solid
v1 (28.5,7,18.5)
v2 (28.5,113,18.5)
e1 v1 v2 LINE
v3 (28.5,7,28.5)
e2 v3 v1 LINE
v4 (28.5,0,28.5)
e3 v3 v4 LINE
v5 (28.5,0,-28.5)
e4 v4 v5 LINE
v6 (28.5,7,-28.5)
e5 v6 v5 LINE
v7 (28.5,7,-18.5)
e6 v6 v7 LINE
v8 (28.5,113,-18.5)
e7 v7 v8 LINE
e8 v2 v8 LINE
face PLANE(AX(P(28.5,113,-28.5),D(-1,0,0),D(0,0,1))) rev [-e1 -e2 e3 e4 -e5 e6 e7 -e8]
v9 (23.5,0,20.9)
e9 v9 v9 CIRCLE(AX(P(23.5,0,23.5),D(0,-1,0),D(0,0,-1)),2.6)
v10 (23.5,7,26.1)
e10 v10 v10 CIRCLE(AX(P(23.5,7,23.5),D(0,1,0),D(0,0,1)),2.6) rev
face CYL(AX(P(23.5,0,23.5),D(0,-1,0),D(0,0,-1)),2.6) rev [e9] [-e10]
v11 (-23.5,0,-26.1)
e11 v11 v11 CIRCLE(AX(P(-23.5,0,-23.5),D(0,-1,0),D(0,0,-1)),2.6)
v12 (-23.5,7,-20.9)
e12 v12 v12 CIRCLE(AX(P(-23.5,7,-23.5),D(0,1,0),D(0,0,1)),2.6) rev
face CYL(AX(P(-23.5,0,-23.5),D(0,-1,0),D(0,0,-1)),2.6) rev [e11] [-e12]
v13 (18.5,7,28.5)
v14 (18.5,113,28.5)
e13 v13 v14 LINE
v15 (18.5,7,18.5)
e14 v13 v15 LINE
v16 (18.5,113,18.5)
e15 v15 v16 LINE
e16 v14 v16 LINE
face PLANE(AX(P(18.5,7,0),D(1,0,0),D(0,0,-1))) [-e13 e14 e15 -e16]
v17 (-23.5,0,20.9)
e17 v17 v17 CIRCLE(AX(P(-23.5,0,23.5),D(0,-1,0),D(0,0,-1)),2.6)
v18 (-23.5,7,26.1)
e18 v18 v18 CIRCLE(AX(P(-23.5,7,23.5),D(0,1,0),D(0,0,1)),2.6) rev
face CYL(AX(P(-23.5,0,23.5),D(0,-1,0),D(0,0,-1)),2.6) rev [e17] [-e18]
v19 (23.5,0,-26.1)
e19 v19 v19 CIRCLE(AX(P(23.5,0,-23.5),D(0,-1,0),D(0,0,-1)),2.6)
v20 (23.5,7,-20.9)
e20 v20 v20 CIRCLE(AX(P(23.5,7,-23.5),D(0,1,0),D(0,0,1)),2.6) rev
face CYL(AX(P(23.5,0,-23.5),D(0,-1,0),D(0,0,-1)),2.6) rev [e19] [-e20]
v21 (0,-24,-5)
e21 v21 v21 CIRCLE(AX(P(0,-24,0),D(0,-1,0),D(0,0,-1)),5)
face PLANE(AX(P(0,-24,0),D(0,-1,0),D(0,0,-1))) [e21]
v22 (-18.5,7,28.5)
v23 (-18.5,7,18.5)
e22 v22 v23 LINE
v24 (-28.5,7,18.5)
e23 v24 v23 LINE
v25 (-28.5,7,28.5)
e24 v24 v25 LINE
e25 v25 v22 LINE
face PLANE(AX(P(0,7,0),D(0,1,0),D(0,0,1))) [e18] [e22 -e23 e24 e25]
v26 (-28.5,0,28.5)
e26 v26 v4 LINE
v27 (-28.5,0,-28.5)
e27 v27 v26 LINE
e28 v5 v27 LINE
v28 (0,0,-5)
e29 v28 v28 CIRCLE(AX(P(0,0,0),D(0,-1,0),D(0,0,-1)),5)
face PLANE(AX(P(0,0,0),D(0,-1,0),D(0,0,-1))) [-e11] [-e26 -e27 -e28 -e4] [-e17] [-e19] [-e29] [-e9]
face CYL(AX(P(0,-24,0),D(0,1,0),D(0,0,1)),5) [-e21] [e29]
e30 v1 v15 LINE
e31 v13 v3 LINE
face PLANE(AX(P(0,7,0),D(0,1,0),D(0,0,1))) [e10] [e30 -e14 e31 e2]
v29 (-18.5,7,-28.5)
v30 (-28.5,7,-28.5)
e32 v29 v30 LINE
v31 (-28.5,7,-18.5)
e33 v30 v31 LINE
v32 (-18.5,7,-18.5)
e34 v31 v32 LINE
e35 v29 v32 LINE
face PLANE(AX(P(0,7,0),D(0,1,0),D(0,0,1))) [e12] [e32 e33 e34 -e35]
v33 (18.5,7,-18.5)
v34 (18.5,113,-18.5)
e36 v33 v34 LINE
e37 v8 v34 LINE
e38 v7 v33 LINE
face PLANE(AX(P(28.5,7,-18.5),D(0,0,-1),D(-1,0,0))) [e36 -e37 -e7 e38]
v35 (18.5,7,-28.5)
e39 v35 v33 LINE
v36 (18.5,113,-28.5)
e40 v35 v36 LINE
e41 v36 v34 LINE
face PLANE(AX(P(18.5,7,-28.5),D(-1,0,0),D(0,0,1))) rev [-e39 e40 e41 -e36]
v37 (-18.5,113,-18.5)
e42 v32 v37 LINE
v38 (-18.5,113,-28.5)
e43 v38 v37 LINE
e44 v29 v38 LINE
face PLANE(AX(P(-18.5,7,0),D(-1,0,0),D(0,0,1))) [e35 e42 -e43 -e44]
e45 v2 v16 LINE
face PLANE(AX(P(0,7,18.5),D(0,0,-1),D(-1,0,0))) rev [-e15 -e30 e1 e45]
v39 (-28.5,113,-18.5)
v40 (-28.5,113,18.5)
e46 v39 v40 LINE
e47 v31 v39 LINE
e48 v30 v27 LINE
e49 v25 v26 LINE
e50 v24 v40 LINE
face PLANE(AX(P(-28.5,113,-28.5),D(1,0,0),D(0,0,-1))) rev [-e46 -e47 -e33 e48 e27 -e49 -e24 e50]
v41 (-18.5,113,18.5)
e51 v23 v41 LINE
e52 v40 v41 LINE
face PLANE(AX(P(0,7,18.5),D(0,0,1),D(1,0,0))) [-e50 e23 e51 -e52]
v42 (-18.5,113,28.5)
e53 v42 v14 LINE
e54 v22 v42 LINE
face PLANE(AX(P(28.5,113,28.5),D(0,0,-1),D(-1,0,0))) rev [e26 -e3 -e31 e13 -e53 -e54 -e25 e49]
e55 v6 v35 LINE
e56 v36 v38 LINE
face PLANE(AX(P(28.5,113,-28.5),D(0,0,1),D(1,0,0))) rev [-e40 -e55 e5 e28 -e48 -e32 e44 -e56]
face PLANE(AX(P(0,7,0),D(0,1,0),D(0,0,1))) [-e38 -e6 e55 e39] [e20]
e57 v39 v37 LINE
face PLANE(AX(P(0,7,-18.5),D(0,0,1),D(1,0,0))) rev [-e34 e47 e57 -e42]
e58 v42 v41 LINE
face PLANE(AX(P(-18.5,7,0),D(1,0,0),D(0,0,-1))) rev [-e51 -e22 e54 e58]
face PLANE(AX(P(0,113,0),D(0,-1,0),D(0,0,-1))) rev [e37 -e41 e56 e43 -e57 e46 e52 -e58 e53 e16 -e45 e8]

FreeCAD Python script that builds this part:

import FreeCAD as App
import Part
import Sketcher
from FreeCAD import Vector


def add_polygon(sketch, points):
    """Adds a closed chain of lines whose ends are joined by coincident constraints."""
    first, n = sketch.GeometryCount, len(points)
    for a, b in zip(points, points[1:] + points[:1]):
        sketch.addGeometry(Part.LineSegment(App.Vector(*a, 0), App.Vector(*b, 0)), False)
    for i in range(n):
        sketch.addConstraint(Sketcher.Constraint("Coincident", first + i, 2, first + (i + 1) % n, 1))

doc = App.newDocument("Part")
body = doc.addObject("PartDesign::Body", "Body")

sketch1 = body.newObject("Sketcher::SketchObject", "Sketch")
sketch1.AttachmentSupport = (doc.getObject("XZ_Plane"), [""])
sketch1.MapMode = "FlatFace"
add_polygon(sketch1, [(-28, -28), (-28, 28), (28, 28), (28, -28)])
sketch1.addConstraint(Sketcher.Constraint("Vertical", 0))
sketch1.addConstraint(Sketcher.Constraint("Horizontal", 1))
sketch1.addConstraint(Sketcher.Constraint("Vertical", 2))
sketch1.addConstraint(Sketcher.Constraint("Horizontal", 3))
sketch1.addConstraint(Sketcher.Constraint("Symmetric", 0, 2, 2, 2, -1, 1))
sketch1.addConstraint(Sketcher.Constraint("Equal", 3, 0))
sketch1.addConstraint(Sketcher.Constraint("DistanceX", 1, 1, 1, 2, 57.0))
pad1 = body.newObject("PartDesign::Pad", "Pad")
pad1.Profile = sketch1
pad1.Length = 113
pad1.Reversed = True

sketch2 = body.newObject("Sketcher::SketchObject", "Sketch001")
sketch2.AttachmentSupport = (doc.getObject("XZ_Plane"), [""])
sketch2.MapMode = "FlatFace"
sketch2.addGeometry(Part.Circle(Vector(0, 0, 0), Vector(0, 0, 1), 5), False)
sketch2.addConstraint(Sketcher.Constraint("Coincident", 0, 3, -1, 1))
sketch2.addConstraint(Sketcher.Constraint("Diameter", 0, 10.0))
pad2 = body.newObject("PartDesign::Pad", "Pad001")
pad2.Profile = sketch2
pad2.Length = 24

sketch3 = body.newObject("Sketcher::SketchObject", "Sketch002")
sketch3.AttachmentSupport = (doc.getObject("XZ_Plane"), [""])
sketch3.MapMode = "FlatFace"
sketch3.addGeometry(Part.Circle(Vector(-23.5, 23.5, 0), Vector(0, 0, 1), 2.6), False)
sketch3.addGeometry(Part.Circle(Vector(23.5, 23.5, 0), Vector(0, 0, 1), 2.6), False)
sketch3.addGeometry(Part.Circle(Vector(23.5, -23.5, 0), Vector(0, 0, 1), 2.6), False)
sketch3.addGeometry(Part.Circle(Vector(-23.5, -23.5, 0), Vector(0, 0, 1), 2.6), False)
sketch3.addConstraint(Sketcher.Constraint("Equal", 0, 1))
sketch3.addConstraint(Sketcher.Constraint("Equal", 1, 2))
sketch3.addConstraint(Sketcher.Constraint("Equal", 2, 3))
sketch3.addConstraint(Sketcher.Constraint("Symmetric", 0, 3, 2, 3, -1, 1))
sketch3.addConstraint(Sketcher.Constraint("Symmetric", 1, 3, 3, 3, -1, 1))
sketch3.addConstraint(Sketcher.Constraint("Symmetric", 0, 3, 1, 3, -2))
sketch3.addConstraint(Sketcher.Constraint("Diameter", 0, 5.2))
sketch3.addConstraint(Sketcher.Constraint("DistanceX", 0, 3, 1, 3, 47.0))
sketch3.addConstraint(Sketcher.Constraint("DistanceY", 2, 3, 1, 3, 47.0))
doc.recompute()
hole = body.newObject("PartDesign::Hole", "Hole")
hole.Profile = sketch3
hole.ThreadType = "None"
hole.Diameter = 5.2
hole.DepthType = "ThroughAll"

sketch4 = body.newObject("Sketcher::SketchObject", "Sketch003")
sketch4.AttachmentSupport = (doc.getObject("XZ_Plane"), [""])
sketch4.MapMode = "FlatFace"
sketch4.AttachmentOffset = App.Placement(Vector(0, 0, -113), App.Rotation())
add_polygon(sketch4, [(-28.5, 18.5), (-28.5, 28.5), (-18.5, 28.5), (-18.5, 18.5)])
sketch4.addGeometry(Part.Circle(Vector(-23.5, 23.5, 0), Vector(0, 0, 1), 2.6), False)
add_polygon(sketch4, [(18.5, 18.5), (18.5, 28.5), (28.5, 28.5), (28.5, 18.5)])
add_polygon(sketch4, [(-28.5, -28.5), (-28.5, -18.5), (-18.5, -18.5), (-18.5, -28.5)])
add_polygon(sketch4, [(18.5, -28.5), (18.5, -18.5), (28.5, -18.5), (28.5, -28.5)])
sketch4.addConstraint(Sketcher.Constraint("Vertical", 0))
sketch4.addConstraint(Sketcher.Constraint("Horizontal", 1))
sketch4.addConstraint(Sketcher.Constraint("Vertical", 2))
sketch4.addConstraint(Sketcher.Constraint("Horizontal", 3))
sketch4.addConstraint(Sketcher.Constraint("Vertical", 5))
sketch4.addConstraint(Sketcher.Constraint("Horizontal", 6))
sketch4.addConstraint(Sketcher.Constraint("Vertical", 7))
sketch4.addConstraint(Sketcher.Constraint("Horizontal", 8))
sketch4.addConstraint(Sketcher.Constraint("Vertical", 9))
sketch4.addConstraint(Sketcher.Constraint("Horizontal", 10))
sketch4.addConstraint(Sketcher.Constraint("Vertical", 11))
sketch4.addConstraint(Sketcher.Constraint("Horizontal", 12))
sketch4.addConstraint(Sketcher.Constraint("Vertical", 13))
sketch4.addConstraint(Sketcher.Constraint("Horizontal", 14))
sketch4.addConstraint(Sketcher.Constraint("Vertical", 15))
sketch4.addConstraint(Sketcher.Constraint("Horizontal", 16))
sketch4.addConstraint(Sketcher.Constraint("Symmetric", 7, 2, 9, 2, -1, 1))
sketch4.addConstraint(Sketcher.Constraint("Symmetric", 5, 2, 11, 2, -1, 1))
sketch4.addConstraint(Sketcher.Constraint("Symmetric", 2, 2, 13, 2, -1, 1))
sketch4.addConstraint(Sketcher.Constraint("Symmetric", 0, 2, 15, 2, -1, 1))
sketch4.addConstraint(Sketcher.Constraint("Symmetric", 1, 2, 5, 2, -2))
sketch4.addConstraint(Sketcher.Constraint("Symmetric", 3, 2, 7, 2, -2))
sketch4.addConstraint(Sketcher.Constraint("Equal", 16, 0))
sketch4.addConstraint(Sketcher.Constraint("Diameter", 4, 5.2))
sketch4.addConstraint(Sketcher.Constraint("DistanceX", 1, 1, 1, 2, 10.0))
sketch4.addConstraint(Sketcher.Constraint("DistanceX", 0, 2, 4, 3, 5.0))
sketch4.addConstraint(Sketcher.Constraint("DistanceY", 4, 3, 0, 2, 5.0))
sketch4.addConstraint(Sketcher.Constraint("DistanceX", 1, 2, 5, 2, 37.0))
sketch4.addConstraint(Sketcher.Constraint("DistanceY", 9, 2, 3, 2, 37.0))
pocket1 = body.newObject("PartDesign::Pocket", "Pocket")
pocket1.Profile = sketch4
pocket1.Length = 106
pocket1.Reversed = True

doc.recompute()
